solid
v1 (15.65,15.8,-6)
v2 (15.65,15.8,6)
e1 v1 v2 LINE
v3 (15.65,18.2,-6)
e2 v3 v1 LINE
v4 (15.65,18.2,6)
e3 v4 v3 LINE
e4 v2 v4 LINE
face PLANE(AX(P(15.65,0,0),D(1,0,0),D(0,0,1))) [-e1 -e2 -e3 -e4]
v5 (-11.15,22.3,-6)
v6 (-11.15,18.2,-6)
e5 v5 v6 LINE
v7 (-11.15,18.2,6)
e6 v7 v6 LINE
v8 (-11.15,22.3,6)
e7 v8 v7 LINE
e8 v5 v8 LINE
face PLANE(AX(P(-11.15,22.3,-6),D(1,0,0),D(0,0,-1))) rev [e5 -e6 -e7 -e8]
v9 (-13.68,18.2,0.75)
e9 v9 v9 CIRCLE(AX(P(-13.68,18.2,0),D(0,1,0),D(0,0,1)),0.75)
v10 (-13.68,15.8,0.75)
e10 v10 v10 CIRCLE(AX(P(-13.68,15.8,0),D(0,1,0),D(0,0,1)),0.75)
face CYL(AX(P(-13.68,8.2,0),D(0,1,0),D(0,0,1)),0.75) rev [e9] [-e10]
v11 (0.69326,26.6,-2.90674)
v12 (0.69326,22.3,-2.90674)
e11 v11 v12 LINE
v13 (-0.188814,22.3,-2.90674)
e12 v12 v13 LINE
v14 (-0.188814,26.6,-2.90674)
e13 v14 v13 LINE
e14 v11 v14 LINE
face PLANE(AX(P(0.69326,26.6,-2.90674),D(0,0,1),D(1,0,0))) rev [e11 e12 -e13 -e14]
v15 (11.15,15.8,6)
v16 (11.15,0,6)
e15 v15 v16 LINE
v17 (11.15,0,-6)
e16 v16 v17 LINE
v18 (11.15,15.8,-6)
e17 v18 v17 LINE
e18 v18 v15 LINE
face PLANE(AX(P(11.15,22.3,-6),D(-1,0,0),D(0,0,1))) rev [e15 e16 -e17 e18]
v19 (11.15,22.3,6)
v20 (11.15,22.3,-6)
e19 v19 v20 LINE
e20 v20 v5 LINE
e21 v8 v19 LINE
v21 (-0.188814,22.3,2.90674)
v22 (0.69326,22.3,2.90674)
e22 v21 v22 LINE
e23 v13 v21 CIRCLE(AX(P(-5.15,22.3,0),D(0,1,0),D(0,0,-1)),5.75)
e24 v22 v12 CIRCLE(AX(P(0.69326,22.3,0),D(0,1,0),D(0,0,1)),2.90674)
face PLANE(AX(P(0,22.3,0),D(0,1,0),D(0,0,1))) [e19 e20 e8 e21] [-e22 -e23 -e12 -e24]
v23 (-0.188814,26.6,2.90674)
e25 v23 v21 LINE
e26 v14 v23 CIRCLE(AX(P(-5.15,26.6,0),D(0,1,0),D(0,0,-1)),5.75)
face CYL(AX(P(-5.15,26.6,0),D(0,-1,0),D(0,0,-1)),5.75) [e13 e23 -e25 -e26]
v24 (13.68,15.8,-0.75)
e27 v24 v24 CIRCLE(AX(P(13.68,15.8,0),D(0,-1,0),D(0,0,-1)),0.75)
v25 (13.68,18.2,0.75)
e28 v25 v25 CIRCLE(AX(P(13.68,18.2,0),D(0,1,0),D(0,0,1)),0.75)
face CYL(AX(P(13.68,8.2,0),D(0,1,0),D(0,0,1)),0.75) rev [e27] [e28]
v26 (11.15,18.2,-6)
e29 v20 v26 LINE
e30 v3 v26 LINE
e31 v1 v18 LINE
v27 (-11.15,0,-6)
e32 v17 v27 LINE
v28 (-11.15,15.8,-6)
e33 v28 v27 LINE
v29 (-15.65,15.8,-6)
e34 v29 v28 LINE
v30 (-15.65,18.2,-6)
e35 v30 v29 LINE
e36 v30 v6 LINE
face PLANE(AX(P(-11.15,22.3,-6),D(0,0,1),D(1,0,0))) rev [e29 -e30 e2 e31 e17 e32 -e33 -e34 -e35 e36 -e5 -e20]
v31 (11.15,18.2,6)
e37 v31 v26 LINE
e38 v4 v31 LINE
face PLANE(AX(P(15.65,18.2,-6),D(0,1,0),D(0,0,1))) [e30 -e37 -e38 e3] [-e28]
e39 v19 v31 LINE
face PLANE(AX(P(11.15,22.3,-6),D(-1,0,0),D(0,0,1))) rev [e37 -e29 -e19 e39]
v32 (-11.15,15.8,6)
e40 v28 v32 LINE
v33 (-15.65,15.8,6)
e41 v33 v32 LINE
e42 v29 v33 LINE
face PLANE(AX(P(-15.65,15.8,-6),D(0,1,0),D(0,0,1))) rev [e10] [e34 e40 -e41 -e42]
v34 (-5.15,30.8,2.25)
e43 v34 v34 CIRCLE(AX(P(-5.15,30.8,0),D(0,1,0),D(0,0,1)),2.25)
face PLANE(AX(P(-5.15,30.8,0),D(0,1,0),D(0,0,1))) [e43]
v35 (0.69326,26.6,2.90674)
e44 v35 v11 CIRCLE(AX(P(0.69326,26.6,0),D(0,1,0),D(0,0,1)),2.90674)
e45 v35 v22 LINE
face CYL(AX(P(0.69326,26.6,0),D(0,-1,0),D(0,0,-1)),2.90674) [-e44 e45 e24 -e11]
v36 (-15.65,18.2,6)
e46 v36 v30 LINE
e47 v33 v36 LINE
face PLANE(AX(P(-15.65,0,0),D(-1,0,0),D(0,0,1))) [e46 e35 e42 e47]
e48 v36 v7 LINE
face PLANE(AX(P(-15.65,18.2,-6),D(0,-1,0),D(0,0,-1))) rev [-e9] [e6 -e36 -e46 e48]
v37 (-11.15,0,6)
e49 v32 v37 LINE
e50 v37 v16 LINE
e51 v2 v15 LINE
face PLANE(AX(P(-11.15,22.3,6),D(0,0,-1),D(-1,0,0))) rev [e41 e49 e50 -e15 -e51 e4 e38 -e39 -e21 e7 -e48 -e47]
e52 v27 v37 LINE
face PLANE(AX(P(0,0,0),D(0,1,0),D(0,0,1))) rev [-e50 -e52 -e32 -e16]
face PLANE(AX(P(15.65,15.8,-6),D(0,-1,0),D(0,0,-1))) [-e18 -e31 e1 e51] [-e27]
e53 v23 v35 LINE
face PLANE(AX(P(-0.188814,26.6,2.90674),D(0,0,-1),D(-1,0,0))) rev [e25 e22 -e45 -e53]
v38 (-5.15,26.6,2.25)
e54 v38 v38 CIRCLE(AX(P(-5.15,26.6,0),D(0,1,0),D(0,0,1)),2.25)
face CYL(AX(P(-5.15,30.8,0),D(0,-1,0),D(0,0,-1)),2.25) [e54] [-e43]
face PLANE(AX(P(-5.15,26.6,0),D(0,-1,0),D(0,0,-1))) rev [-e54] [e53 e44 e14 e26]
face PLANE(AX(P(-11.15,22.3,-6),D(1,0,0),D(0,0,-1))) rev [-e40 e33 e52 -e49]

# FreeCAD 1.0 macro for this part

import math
import FreeCAD as App
import Part
import Sketcher
Q = App.Units.Quantity

doc = App.newDocument("Part")
body = doc.addObject("PartDesign::Body", "Body")

sketch1 = doc.addObject("Sketcher::SketchObject", "Sketch")
body.addObject(sketch1)
sketch1.AttachmentSupport = (doc.XZ_Plane, [""])
sketch1.MapMode = "FlatFace"
sketch1.addGeometry([
    Part.LineSegment(App.Vector(-11, -6, 0), App.Vector(-11, 6, 0)),
    Part.LineSegment(App.Vector(-11, 6, 0), App.Vector(11, 6, 0)),
    Part.LineSegment(App.Vector(11, 6, 0), App.Vector(11, -6, 0)),
    Part.LineSegment(App.Vector(11, -6, 0), App.Vector(-11, -6, 0)),
], False)
sketch1.addConstraint([
    Sketcher.Constraint("Coincident", 0, 2, 1, 1),
    Sketcher.Constraint("Coincident", 1, 2, 2, 1),
    Sketcher.Constraint("Coincident", 2, 2, 3, 1),
    Sketcher.Constraint("Coincident", 3, 2, 0, 1),
    Sketcher.Constraint("Vertical", 0),
    Sketcher.Constraint("Horizontal", 1),
    Sketcher.Constraint("Vertical", 2),
    Sketcher.Constraint("Horizontal", 3),
    Sketcher.Constraint("Symmetric", 0, 2, 2, 2, -1, 1),
    Sketcher.Constraint("DistanceY", 0, 1, 0, 2, Q("12 mm")),
    Sketcher.Constraint("DistanceX", 1, 1, 1, 2, Q("22.3 mm")),
])
pad1 = doc.addObject("PartDesign::Pad", "Pad")
body.addObject(pad1)
pad1.Profile = sketch1
pad1.Length = 22.3
pad1.Reversed = True

sketch2 = doc.addObject("Sketcher::SketchObject", "Sketch001")
body.addObject(sketch2)
sketch2.AttachmentSupport = (doc.YZ_Plane, [""])
sketch2.MapMode = "FlatFace"
sketch2.AttachmentOffset = App.Placement(App.Vector(0, 0, -11.15), App.Rotation())
sketch2.addGeometry([
    Part.LineSegment(App.Vector(18.2, -6, 0), App.Vector(15.8, -6, 0)),
    Part.LineSegment(App.Vector(15.8, -6, 0), App.Vector(15.8, 6, 0)),
    Part.LineSegment(App.Vector(15.8, 6, 0), App.Vector(18.2, 6, 0)),
    Part.LineSegment(App.Vector(18.2, 6, 0), App.Vector(18.2, -6, 0)),
], False)
sketch2.addConstraint([
    Sketcher.Constraint("Coincident", 0, 2, 1, 1),
    Sketcher.Constraint("Coincident", 1, 2, 2, 1),
    Sketcher.Constraint("Coincident", 2, 2, 3, 1),
    Sketcher.Constraint("Coincident", 3, 2, 0, 1),
    Sketcher.Constraint("Horizontal", 0),
    Sketcher.Constraint("Vertical", 1),
    Sketcher.Constraint("Horizontal", 2),
    Sketcher.Constraint("Vertical", 3),
    Sketcher.Constraint("DistanceY", 1, 1, 1, 2, Q("12 mm")),
    Sketcher.Constraint("DistanceX", 0, 2, 0, 1, Q("2.4 mm")),
    Sketcher.Constraint("DistanceY", 0, 2, -1, 1, Q("6 mm")),
    Sketcher.Constraint("DistanceX", -1, 1, 0, 2, Q("15.8 mm")),
])
pad2 = doc.addObject("PartDesign::Pad", "Pad001")
body.addObject(pad2)
pad2.Profile = sketch2
pad2.Length = 4.5
pad2.Reversed = True
doc.recompute()

mirrored = doc.addObject("PartDesign::Mirrored", "Mirrored")
body.addObject(mirrored)
mirrored.Originals = [pad2]
mirrored.MirrorPlane = (doc.YZ_Plane, [""])
body.Tip = mirrored

sketch3 = doc.addObject("Sketcher::SketchObject", "Sketch002")
body.addObject(sketch3)
sketch3.AttachmentSupport = (doc.XZ_Plane, [""])
sketch3.MapMode = "FlatFace"
sketch3.AttachmentOffset = App.Placement(App.Vector(0, 0, -22.3), App.Rotation())
sketch3.addGeometry([
    Part.LineSegment(App.Vector(0.7, -2.9, 0), App.Vector(-0.2, -2.9, 0)),
    Part.ArcOfCircle(Part.Circle(App.Vector(-5.2, 0, 0), App.Vector(0, 0, 1), 5.8), math.radians(30), math.radians(330)),
    Part.LineSegment(App.Vector(-0.2, 2.9, 0), App.Vector(0.7, 2.9, 0)),
    Part.ArcOfCircle(Part.Circle(App.Vector(0.7, 0, 0), App.Vector(0, 0, 1), 2.9), math.radians(-90), math.radians(90)),
], False)
sketch3.addConstraint([
    Sketcher.Constraint("Coincident", 0, 2, 1, 2),
    Sketcher.Constraint("Coincident", 1, 1, 2, 1),
    Sketcher.Constraint("Tangent", 2, 2, 3, 2),
    Sketcher.Constraint("Tangent", 3, 1, 0, 1),
    Sketcher.Constraint("Horizontal", 0),
    Sketcher.Constraint("Horizontal", 2),
    Sketcher.Constraint("Symmetric", 0, 2, 1, 1, -1),
    Sketcher.Constraint("Radius", 1, Q("5.75 mm")),
    Sketcher.Constraint("DistanceX", 1, 3, -1, 1, Q("5.15 mm")),
    Sketcher.Constraint("Radius", 3, Q("2.90674 mm")),
    Sketcher.Constraint("DistanceX", 0, 2, 0, 1, Q("0.882075 mm")),
])
pad3 = doc.addObject("PartDesign::Pad", "Pad002")
body.addObject(pad3)
pad3.Profile = sketch3
pad3.Length = 4.3
pad3.Reversed = True

sketch4 = doc.addObject("Sketcher::SketchObject", "Sketch003")
body.addObject(sketch4)
sketch4.AttachmentSupport = (doc.XZ_Plane, [""])
sketch4.MapMode = "FlatFace"
sketch4.AttachmentOffset = App.Placement(App.Vector(0, 0, -18.2), App.Rotation())
sketch4.addGeometry([
    Part.Circle(App.Vector(-13.7, 0, 0), App.Vector(0, 0, 1), 0.8),
    Part.Circle(App.Vector(13.7, 0, 0), App.Vector(0, 0, 1), 0.8),
], False)
sketch4.addConstraint([
    Sketcher.Constraint("Equal", 0, 1),
    Sketcher.Constraint("Symmetric", 0, 3, 1, 3, -1, 1),
    Sketcher.Constraint("PointOnObject", 0, 3, -1),
    Sketcher.Constraint("Diameter", 0, Q("1.5 mm")),
    Sketcher.Constraint("DistanceX", 0, 3, -1, 1, Q("13.68 mm")),
])
pocket1 = doc.addObject("PartDesign::Pocket", "Pocket")
body.addObject(pocket1)
pocket1.Profile = sketch4
pocket1.Length = 10
pocket1.Reversed = True

sketch5 = doc.addObject("Sketcher::SketchObject", "Sketch004")
body.addObject(sketch5)
sketch5.AttachmentSupport = (doc.XZ_Plane, [""])
sketch5.MapMode = "FlatFace"
sketch5.AttachmentOffset = App.Placement(App.Vector(0, 0, -26.6), App.Rotation())
sketch5.addGeometry(Part.Circle(App.Vector(-5.2, 0, 0), App.Vector(0, 0, 1), 2.2), False)
sketch5.addConstraint([
    Sketcher.Constraint("PointOnObject", 0, 3, -1),
    Sketcher.Constraint("Diameter", 0, Q("4.5 mm")),
    Sketcher.Constraint("DistanceX", 0, 3, -1, 1, Q("5.15 mm")),
])
pad4 = doc.addObject("PartDesign::Pad", "Pad003")
body.addObject(pad4)
pad4.Profile = sketch5
pad4.Length = 4.2
pad4.Reversed = True

doc.recompute()
